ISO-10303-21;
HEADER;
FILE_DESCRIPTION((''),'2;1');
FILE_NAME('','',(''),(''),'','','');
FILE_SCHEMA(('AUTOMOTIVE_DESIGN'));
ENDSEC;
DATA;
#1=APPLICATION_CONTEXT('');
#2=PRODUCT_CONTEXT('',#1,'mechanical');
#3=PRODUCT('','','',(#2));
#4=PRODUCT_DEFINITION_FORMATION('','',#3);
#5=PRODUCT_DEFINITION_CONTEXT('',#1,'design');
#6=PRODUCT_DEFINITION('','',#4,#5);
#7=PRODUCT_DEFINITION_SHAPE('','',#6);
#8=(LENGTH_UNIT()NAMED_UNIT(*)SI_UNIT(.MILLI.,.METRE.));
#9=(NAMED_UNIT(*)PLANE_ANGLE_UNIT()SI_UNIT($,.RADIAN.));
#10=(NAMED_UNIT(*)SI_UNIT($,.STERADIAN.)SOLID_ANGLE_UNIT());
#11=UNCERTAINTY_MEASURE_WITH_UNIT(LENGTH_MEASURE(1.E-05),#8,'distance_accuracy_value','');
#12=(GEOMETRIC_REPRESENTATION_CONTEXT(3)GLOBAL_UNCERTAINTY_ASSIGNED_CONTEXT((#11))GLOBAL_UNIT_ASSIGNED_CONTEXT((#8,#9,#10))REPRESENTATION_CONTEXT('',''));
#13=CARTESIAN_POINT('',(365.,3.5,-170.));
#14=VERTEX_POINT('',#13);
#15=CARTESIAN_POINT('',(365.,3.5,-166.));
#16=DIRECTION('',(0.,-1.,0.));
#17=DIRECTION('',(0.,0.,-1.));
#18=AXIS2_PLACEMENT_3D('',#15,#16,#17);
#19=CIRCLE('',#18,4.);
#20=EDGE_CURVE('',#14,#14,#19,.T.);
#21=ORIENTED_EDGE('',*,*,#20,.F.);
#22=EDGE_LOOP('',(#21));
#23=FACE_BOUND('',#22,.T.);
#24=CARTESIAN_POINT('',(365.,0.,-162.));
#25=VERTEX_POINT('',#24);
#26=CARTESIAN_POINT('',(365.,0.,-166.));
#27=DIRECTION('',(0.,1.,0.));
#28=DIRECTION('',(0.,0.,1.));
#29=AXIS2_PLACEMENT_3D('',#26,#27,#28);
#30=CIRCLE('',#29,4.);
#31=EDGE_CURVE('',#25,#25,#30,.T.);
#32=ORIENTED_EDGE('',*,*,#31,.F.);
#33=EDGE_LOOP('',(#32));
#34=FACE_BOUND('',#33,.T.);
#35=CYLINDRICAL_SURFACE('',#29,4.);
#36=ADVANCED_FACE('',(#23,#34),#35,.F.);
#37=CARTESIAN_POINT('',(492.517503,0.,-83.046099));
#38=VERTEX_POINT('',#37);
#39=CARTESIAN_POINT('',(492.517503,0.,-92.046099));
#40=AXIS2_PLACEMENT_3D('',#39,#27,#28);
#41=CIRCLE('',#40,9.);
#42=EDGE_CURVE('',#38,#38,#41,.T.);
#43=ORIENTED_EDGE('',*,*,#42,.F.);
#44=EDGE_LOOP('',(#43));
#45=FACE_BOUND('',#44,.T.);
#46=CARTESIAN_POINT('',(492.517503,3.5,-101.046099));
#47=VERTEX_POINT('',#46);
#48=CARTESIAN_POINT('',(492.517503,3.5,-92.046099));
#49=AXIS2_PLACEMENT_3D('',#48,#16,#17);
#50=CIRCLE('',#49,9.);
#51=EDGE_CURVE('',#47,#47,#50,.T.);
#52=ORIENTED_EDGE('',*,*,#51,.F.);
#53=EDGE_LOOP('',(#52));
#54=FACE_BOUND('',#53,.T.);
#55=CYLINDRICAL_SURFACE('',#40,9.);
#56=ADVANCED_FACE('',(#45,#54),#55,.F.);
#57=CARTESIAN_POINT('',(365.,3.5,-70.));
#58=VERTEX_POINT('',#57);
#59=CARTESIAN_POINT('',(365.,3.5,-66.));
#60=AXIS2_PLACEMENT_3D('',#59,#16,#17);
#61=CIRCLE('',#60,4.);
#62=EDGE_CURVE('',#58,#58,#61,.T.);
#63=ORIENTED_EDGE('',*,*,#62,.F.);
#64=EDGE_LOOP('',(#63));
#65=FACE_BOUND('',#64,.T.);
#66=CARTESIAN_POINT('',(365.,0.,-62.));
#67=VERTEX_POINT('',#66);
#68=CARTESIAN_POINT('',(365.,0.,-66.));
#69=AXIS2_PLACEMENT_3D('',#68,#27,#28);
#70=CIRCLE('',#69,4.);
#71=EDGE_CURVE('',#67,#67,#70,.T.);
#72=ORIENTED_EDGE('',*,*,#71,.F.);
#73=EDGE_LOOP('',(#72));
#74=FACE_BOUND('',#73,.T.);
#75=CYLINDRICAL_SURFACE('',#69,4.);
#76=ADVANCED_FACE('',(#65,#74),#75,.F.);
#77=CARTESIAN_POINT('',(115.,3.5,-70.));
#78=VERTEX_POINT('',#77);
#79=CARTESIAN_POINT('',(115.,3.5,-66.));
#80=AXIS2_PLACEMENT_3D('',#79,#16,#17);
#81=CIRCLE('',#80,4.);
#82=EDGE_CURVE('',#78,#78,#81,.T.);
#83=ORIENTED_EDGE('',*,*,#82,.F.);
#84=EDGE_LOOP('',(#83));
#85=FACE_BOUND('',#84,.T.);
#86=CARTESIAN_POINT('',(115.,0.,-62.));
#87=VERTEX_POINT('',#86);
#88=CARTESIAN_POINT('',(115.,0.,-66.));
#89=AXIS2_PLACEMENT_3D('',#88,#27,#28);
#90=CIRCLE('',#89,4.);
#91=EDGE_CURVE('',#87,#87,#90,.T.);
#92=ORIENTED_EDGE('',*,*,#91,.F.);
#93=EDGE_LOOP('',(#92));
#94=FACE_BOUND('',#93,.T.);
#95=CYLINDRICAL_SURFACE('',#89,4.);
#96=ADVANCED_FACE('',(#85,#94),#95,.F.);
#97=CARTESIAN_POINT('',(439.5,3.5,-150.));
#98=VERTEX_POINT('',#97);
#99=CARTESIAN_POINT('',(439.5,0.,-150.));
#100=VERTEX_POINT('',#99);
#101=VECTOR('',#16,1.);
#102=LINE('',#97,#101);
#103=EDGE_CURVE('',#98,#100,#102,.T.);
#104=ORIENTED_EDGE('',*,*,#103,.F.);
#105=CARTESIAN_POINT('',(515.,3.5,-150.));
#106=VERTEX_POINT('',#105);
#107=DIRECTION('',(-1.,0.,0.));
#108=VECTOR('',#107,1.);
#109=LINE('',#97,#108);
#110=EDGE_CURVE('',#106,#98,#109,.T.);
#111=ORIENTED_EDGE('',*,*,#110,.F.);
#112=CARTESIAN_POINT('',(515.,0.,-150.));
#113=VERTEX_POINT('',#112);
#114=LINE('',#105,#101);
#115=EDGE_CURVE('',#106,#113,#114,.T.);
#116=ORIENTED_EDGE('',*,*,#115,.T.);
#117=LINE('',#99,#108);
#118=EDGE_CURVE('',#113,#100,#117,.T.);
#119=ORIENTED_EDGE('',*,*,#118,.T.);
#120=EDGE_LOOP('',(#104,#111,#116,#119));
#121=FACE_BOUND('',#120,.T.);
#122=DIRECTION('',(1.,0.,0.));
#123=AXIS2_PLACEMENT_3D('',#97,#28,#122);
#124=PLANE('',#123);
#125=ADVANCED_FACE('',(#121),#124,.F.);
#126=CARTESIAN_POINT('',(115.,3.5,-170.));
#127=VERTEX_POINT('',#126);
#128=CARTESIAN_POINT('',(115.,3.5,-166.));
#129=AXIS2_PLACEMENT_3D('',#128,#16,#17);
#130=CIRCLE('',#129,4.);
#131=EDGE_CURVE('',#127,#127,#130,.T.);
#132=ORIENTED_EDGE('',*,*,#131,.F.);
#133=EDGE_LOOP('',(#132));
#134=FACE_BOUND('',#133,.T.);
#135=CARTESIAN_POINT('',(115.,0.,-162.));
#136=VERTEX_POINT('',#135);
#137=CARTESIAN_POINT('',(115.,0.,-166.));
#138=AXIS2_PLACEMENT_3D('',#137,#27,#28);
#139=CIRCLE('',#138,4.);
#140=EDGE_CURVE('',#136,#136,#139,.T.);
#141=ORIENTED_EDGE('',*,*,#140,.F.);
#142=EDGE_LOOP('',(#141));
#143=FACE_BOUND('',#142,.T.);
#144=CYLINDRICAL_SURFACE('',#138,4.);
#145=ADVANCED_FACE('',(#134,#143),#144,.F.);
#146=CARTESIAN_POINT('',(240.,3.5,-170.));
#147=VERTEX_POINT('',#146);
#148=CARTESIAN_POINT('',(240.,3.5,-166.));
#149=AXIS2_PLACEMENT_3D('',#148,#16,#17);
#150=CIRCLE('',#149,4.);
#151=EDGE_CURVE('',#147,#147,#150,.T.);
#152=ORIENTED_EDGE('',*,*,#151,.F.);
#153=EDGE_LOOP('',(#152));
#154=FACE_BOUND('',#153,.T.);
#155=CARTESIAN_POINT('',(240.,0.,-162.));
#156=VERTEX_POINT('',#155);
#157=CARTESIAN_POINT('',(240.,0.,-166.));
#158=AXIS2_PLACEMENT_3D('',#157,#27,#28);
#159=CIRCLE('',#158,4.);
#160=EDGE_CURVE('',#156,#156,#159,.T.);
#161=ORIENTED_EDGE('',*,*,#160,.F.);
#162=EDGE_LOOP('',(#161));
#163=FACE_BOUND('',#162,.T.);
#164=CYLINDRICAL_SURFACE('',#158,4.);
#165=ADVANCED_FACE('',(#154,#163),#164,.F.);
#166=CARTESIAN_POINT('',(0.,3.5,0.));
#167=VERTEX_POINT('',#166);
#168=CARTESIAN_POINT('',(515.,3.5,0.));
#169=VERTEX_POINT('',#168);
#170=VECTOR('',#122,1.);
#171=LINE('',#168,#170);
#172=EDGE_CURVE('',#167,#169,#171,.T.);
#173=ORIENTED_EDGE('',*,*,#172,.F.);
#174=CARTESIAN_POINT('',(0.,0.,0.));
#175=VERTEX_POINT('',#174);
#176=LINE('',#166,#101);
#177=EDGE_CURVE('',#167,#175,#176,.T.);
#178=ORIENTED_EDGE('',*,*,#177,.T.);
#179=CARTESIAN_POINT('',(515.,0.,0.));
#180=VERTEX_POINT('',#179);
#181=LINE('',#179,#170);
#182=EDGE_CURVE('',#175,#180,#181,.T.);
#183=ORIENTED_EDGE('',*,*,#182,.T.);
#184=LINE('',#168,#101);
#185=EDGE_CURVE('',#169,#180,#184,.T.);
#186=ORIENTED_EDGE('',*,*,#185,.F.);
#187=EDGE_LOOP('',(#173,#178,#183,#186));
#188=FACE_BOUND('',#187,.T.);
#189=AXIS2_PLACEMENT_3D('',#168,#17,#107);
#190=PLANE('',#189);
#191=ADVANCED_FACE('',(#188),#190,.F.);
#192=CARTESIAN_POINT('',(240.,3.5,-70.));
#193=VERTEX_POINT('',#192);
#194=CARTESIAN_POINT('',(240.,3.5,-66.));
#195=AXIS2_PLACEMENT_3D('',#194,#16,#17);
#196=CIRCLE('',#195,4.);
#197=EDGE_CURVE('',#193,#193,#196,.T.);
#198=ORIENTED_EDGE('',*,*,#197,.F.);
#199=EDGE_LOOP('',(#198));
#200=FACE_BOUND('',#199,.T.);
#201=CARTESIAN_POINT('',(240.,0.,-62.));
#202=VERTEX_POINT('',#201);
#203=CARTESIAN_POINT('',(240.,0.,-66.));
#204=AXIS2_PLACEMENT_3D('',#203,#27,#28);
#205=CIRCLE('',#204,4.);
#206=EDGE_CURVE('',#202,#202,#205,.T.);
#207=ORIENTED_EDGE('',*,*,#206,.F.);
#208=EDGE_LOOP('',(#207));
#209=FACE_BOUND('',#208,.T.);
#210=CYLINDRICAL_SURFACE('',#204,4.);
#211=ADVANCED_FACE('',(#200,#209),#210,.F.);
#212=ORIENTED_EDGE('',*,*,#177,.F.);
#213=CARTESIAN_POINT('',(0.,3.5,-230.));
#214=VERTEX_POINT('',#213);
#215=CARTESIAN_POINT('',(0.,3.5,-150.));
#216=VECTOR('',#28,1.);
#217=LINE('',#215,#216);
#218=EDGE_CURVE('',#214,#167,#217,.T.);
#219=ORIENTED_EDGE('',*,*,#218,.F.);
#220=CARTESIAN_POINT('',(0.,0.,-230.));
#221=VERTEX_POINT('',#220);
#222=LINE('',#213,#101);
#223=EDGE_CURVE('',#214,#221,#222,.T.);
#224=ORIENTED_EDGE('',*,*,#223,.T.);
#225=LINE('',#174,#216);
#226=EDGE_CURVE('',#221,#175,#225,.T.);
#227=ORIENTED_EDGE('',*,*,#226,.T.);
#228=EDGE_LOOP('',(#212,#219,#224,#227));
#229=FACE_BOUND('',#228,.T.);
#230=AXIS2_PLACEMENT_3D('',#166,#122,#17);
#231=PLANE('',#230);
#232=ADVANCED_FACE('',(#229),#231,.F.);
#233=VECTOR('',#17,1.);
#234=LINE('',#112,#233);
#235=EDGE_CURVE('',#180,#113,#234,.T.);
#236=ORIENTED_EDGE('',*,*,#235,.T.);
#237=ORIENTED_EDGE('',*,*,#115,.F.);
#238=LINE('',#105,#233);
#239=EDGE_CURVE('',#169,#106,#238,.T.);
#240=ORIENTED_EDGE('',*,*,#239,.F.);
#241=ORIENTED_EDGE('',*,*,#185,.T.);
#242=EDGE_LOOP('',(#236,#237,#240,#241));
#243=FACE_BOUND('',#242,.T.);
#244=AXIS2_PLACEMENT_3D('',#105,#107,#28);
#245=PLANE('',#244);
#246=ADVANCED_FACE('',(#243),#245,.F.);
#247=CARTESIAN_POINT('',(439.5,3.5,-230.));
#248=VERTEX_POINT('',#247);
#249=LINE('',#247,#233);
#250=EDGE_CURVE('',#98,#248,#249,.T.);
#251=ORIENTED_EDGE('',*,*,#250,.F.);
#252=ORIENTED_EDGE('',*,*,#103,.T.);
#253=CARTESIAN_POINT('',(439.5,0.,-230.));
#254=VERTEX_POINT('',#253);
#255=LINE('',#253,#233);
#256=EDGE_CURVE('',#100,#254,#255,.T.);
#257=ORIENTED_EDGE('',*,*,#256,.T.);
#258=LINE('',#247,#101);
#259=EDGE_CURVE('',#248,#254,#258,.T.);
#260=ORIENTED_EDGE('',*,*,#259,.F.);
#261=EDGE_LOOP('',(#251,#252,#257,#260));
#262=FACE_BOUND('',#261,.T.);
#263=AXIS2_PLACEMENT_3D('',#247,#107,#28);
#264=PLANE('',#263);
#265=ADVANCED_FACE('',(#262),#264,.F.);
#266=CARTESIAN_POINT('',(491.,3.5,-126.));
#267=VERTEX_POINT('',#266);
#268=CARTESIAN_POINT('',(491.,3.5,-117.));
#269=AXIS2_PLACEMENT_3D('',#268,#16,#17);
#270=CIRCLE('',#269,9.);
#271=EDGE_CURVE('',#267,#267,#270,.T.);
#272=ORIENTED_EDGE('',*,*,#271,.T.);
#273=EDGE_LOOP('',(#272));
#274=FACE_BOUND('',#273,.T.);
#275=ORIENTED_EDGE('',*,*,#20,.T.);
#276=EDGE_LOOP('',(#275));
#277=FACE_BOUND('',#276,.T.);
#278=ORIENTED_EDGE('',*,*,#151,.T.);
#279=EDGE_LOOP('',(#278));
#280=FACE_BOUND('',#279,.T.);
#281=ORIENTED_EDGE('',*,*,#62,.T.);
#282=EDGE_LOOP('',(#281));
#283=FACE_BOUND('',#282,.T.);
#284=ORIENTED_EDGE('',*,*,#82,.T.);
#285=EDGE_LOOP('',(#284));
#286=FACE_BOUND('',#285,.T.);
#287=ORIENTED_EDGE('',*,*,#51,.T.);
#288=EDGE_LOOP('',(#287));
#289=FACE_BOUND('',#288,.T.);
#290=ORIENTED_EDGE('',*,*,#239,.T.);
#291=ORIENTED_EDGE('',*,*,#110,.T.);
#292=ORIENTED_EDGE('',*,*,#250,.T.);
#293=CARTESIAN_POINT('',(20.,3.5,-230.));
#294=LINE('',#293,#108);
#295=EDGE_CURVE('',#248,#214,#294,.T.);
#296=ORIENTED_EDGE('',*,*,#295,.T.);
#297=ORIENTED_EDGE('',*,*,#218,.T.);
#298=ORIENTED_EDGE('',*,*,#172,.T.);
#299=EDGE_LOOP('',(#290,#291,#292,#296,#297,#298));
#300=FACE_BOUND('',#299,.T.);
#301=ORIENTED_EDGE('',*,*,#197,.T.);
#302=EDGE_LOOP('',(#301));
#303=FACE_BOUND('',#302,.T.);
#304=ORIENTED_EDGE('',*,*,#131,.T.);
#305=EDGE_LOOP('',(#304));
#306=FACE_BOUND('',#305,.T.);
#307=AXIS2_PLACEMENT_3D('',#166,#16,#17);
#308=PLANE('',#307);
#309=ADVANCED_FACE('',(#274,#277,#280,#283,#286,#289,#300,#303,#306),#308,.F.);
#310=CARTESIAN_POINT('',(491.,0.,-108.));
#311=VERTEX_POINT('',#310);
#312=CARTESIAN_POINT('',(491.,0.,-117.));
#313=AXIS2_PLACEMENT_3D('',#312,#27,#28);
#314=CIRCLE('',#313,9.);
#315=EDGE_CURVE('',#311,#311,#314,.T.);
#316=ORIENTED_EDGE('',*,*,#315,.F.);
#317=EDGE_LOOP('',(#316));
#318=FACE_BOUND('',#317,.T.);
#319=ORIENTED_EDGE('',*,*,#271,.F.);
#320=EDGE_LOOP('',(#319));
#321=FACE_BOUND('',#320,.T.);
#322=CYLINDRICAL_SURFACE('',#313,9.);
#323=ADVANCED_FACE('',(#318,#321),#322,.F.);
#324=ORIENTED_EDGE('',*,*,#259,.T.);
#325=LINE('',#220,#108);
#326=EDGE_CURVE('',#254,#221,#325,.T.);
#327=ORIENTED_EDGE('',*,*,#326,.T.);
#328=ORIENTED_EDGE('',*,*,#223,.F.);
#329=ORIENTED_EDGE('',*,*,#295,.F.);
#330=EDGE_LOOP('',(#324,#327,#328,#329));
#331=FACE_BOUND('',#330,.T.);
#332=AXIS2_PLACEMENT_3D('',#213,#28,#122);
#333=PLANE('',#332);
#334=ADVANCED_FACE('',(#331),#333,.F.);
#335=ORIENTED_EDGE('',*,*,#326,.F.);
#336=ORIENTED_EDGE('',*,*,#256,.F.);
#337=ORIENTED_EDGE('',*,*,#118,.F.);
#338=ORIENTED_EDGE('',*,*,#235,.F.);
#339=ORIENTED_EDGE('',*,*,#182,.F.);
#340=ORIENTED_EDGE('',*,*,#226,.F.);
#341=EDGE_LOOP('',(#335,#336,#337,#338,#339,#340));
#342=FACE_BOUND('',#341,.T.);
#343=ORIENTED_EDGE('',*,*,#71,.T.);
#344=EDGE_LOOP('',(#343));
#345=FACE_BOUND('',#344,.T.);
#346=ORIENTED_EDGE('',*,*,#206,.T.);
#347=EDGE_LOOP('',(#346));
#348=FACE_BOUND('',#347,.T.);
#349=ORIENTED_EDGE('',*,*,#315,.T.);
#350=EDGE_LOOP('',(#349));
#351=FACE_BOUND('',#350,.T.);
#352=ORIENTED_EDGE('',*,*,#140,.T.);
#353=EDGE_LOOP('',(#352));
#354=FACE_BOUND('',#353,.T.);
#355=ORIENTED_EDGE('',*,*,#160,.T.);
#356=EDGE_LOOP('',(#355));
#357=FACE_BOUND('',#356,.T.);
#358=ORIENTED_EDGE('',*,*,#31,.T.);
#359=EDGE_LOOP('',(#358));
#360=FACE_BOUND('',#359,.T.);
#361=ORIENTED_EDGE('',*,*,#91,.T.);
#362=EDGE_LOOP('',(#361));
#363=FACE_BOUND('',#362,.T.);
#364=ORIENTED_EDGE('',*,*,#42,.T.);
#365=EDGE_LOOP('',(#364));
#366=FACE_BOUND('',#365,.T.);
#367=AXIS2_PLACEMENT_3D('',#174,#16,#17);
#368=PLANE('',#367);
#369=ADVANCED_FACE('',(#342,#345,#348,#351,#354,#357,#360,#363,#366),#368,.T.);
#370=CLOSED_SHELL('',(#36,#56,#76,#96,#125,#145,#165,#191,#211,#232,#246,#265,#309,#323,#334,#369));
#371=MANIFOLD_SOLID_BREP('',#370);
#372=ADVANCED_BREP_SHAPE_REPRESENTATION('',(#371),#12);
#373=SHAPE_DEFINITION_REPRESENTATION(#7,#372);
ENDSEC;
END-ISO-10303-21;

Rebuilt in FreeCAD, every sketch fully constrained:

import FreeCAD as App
import Part
import Sketcher
from FreeCAD import Vector
Q = App.Units.Quantity


def add_polygon(sketch, points):
    """Adds a closed chain of lines whose ends are joined by coincident constraints."""
    first, n = sketch.GeometryCount, len(points)
    for a, b in zip(points, points[1:] + points[:1]):
        sketch.addGeometry(Part.LineSegment(App.Vector(*a, 0), App.Vector(*b, 0)), False)
    for i in range(n):
        sketch.addConstraint(Sketcher.Constraint("Coincident", first + i, 2, first + (i + 1) % n, 1))

doc = App.newDocument("Part")
body = doc.addObject("PartDesign::Body", "Body")

sketch1 = body.newObject("Sketcher::SketchObject", "Sketch")
sketch1.AttachmentSupport = (doc.getObject("XZ_Plane"), [""])
sketch1.MapMode = "FlatFace"
add_polygon(sketch1, [(0, -230), (0, 0), (515, 0), (515, -150), (440, -150), (440, -230)])
sketch1.addConstraint([
    Sketcher.Constraint("Vertical", 0),
    Sketcher.Constraint("Horizontal", 1),
    Sketcher.Constraint("Vertical", 2),
    Sketcher.Constraint("Horizontal", 3),
    Sketcher.Constraint("Vertical", 4),
    Sketcher.Constraint("Horizontal", 5),
    Sketcher.Constraint("Coincident", 0, 2, -1, 1),
    Sketcher.Constraint("DistanceX", 1, 1, 1, 2, Q("515 mm")),
    Sketcher.Constraint("DistanceY", 0, 1, 0, 2, Q("230 mm")),
    Sketcher.Constraint("DistanceY", 2, 2, 2, 1, Q("150 mm")),
    Sketcher.Constraint("DistanceX", 3, 2, 3, 1, Q("75.5 mm")),
])
pad1 = body.newObject("PartDesign::Pad", "Pad")
pad1.Profile = sketch1
pad1.Length = 3.5
pad1.Reversed = True

sketch2 = body.newObject("Sketcher::SketchObject", "Sketch001")
sketch2.AttachmentSupport = (doc.getObject("XZ_Plane"), [""])
sketch2.MapMode = "FlatFace"
sketch2.AttachmentOffset = App.Placement(Vector(0, 0, -3.5), App.Rotation())
sketch2.addGeometry([
    Part.Circle(Vector(115, -166, 0), Vector(0, 0, 1), 4),
    Part.Circle(Vector(240, -166, 0), Vector(0, 0, 1), 4),
    Part.Circle(Vector(365, -166, 0), Vector(0, 0, 1), 4),
    Part.Circle(Vector(365, -66, 0), Vector(0, 0, 1), 4),
    Part.Circle(Vector(240, -66, 0), Vector(0, 0, 1), 4),
    Part.Circle(Vector(115, -66, 0), Vector(0, 0, 1), 4),
    Part.Circle(Vector(492.5, -92, 0), Vector(0, 0, 1), 9),
    Part.Circle(Vector(491, -117, 0), Vector(0, 0, 1), 9),
], False)
sketch2.addConstraint([
    Sketcher.Constraint("Equal", 0, 1),
    Sketcher.Constraint("Equal", 1, 2),
    Sketcher.Constraint("Equal", 2, 3),
    Sketcher.Constraint("Equal", 3, 4),
    Sketcher.Constraint("Equal", 4, 5),
    Sketcher.Constraint("Equal", 6, 7),
    Sketcher.Constraint("Horizontal", 0, 3, 1, 3),
    Sketcher.Constraint("Horizontal", 1, 3, 2, 3),
    Sketcher.Constraint("Horizontal", 3, 3, 4, 3),
    Sketcher.Constraint("Horizontal", 4, 3, 5, 3),
    Sketcher.Constraint("Vertical", 2, 3, 3, 3),
    Sketcher.Constraint("Vertical", 1, 3, 4, 3),
    Sketcher.Constraint("Vertical", 0, 3, 5, 3),
    Sketcher.Constraint("Diameter", 0, Q("8 mm")),
    Sketcher.Constraint("Diameter", 6, Q("18 mm")),
    Sketcher.Constraint("DistanceX", -1, 1, 0, 3, Q("115 mm")),
    Sketcher.Constraint("DistanceY", 0, 3, -1, 1, Q("166 mm")),
    Sketcher.Constraint("DistanceX", -1, 1, 1, 3, Q("240 mm")),
    Sketcher.Constraint("DistanceX", -1, 1, 2, 3, Q("365 mm")),
    Sketcher.Constraint("DistanceY", 3, 3, -1, 1, Q("66 mm")),
    Sketcher.Constraint("DistanceX", -1, 1, 7, 3, Q("491 mm")),
    Sketcher.Constraint("DistanceY", 7, 3, -1, 1, Q("117 mm")),
    Sketcher.Constraint("DistanceY", 6, 3, -1, 1, Q("92.046099 mm")),
    Sketcher.Constraint("DistanceX", -1, 1, 6, 3, Q("492.517503 mm")),
])
pocket1 = body.newObject("PartDesign::Pocket", "Pocket")
pocket1.Profile = sketch2
pocket1.Type = "ThroughAll"
pocket1.Midplane = True

doc.recompute()
